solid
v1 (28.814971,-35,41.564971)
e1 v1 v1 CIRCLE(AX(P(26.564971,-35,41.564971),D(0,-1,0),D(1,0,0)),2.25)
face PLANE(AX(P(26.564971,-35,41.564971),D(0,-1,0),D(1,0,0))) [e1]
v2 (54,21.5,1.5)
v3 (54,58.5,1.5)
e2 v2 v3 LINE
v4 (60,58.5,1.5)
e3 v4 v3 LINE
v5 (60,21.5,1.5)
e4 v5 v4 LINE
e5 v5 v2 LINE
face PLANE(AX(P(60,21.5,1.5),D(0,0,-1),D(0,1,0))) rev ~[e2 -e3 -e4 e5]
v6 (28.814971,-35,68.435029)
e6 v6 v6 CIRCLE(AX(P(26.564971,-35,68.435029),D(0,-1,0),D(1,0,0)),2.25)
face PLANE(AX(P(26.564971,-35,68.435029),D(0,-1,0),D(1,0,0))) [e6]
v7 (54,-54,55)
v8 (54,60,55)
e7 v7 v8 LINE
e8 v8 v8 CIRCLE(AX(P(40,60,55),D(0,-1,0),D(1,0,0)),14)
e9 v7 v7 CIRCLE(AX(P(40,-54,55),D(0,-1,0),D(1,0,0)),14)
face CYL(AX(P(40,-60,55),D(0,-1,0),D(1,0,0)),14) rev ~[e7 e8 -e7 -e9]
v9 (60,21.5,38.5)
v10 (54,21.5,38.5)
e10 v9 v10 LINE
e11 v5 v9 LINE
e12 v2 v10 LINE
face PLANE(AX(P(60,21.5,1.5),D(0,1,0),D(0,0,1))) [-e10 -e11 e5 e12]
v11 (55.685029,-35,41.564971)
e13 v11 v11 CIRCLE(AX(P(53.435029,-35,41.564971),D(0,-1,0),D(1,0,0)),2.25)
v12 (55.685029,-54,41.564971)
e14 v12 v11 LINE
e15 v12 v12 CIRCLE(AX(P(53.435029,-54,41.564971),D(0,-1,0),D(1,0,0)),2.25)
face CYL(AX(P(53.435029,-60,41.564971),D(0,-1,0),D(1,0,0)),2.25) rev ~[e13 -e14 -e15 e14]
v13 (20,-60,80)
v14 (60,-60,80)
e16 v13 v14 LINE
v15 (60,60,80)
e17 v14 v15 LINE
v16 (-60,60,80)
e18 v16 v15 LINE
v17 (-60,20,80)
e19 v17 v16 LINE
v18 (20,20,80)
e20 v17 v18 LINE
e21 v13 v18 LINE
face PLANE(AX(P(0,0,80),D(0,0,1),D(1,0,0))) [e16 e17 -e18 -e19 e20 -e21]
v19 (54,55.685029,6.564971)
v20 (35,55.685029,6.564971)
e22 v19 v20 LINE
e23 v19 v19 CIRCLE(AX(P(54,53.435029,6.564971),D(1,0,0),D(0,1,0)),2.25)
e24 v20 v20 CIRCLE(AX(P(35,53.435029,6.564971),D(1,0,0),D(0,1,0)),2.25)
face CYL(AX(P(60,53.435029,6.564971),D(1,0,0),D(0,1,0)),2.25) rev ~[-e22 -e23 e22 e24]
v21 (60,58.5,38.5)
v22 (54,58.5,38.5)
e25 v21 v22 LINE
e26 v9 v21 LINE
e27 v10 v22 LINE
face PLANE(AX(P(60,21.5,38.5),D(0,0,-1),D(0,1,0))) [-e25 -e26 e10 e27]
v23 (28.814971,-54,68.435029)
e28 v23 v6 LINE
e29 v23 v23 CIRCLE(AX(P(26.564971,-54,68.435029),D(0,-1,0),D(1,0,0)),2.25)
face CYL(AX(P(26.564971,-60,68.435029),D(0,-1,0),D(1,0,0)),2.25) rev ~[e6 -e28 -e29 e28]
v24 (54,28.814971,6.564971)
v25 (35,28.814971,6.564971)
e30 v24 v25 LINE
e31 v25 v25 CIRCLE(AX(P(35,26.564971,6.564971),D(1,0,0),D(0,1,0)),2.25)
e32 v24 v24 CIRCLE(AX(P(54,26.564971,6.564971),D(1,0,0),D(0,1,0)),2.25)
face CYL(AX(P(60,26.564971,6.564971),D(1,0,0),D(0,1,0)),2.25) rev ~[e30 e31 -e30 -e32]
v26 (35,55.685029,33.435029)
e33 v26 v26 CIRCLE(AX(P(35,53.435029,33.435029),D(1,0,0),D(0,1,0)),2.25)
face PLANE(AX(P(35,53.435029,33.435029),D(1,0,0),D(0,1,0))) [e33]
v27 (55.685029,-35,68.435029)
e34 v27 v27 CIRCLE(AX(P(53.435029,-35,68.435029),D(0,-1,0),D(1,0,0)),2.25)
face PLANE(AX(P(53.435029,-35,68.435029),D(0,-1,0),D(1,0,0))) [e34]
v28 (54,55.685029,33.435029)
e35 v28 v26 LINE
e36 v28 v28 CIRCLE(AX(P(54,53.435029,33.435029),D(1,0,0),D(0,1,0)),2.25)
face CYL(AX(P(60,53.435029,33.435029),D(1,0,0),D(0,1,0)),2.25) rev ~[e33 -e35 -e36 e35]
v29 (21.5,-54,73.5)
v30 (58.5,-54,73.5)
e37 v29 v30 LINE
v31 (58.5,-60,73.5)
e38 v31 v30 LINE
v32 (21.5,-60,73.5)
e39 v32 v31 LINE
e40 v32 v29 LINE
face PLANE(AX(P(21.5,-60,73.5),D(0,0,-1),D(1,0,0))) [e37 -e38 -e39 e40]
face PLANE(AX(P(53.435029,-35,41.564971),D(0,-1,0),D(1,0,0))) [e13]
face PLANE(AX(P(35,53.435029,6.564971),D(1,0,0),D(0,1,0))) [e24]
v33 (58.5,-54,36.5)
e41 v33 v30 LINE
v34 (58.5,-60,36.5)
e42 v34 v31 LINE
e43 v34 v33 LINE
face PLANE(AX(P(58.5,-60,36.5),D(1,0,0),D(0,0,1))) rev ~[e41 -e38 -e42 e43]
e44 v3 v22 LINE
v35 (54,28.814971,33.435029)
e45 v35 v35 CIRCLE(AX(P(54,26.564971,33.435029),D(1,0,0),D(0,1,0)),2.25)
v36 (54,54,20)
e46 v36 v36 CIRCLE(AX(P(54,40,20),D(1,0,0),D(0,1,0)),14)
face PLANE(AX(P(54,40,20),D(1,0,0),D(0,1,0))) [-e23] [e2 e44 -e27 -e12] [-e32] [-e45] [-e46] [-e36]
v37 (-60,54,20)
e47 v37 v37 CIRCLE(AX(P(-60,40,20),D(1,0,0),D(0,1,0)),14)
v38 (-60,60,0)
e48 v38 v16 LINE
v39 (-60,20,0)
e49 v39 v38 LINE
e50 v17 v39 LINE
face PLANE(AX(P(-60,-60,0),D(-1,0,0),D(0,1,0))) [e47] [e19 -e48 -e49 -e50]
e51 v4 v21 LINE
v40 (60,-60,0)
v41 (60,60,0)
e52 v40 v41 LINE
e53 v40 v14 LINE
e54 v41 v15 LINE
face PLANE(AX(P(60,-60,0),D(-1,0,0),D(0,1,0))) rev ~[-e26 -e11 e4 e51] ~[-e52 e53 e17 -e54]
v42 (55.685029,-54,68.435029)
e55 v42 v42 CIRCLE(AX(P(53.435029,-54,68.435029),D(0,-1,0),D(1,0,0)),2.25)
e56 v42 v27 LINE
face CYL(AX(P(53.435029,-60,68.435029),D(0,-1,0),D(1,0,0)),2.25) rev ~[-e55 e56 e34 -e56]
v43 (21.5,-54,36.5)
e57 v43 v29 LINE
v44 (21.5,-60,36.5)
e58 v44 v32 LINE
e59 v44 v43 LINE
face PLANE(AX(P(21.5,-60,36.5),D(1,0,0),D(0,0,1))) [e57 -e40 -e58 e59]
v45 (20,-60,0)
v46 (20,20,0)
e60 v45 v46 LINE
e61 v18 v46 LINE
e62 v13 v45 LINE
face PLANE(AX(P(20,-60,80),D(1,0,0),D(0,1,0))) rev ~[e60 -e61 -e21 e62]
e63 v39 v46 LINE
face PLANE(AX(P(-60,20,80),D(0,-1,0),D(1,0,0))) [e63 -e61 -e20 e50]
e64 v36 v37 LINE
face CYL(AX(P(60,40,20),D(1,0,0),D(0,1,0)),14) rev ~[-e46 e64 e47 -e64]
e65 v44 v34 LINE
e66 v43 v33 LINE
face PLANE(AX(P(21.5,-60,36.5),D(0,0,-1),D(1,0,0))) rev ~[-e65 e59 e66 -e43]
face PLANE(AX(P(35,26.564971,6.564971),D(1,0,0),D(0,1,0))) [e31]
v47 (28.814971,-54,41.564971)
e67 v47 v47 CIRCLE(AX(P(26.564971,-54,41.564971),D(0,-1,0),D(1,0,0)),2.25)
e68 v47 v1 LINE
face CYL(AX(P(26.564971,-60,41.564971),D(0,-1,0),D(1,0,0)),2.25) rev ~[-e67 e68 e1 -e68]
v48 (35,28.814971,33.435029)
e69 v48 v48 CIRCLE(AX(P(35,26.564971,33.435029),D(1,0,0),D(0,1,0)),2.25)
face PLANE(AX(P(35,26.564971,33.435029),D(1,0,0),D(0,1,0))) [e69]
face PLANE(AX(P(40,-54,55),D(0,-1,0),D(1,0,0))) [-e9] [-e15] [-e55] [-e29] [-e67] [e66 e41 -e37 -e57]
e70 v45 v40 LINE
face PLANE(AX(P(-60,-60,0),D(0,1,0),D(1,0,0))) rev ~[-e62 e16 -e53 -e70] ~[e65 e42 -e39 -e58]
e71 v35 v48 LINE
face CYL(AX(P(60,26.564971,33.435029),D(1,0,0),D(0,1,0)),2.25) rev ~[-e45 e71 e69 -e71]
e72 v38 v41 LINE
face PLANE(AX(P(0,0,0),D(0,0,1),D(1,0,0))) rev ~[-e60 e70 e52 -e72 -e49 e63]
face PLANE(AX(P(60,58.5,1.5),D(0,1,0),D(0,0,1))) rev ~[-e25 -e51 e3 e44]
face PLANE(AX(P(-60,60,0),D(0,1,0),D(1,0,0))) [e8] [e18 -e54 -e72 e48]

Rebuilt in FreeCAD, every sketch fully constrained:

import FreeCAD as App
import Part
import Sketcher
from FreeCAD import Vector

doc = App.newDocument("Part")
params = doc.addObject("Spreadsheet::Sheet", "Params")
for row, (alias, value) in enumerate([
    ("sketch1_width", "120 mm"),
    ("pad1_length", "80 mm"),
    ("sketch2_width", "37 mm"),
    ("pocket1_length", "6 mm"),
    ("sketch3_diameter", "28 mm"),
    ("sketch4_diameter", "4.5 mm"),
    ("pocket3_length", "25 mm"),
    ("sketch5_width", "37 mm"),
    ("pocket4_length", "6 mm"),
    ("sketch6_diameter", "28 mm"),
    ("sketch7_diameter", "4.5 mm"),
    ("pocket6_length", "25 mm"),
    ("sketch8_width", "80 mm"),
], start=1):
    params.set(f"A{row}", alias)
    params.set(f"B{row}", "=" + value)
    params.setAlias(f"B{row}", alias)

body = doc.addObject("PartDesign::Body", "Body")

sketch1 = body.newObject("Sketcher::SketchObject", "Sketch")
sketch1.AttachmentSupport = (doc.getObject("XY_Plane"), [""])
sketch1.MapMode = "FlatFace"
sketch1.addGeometry([
    Part.LineSegment(Vector(-60, 60, 0), Vector(-60, -60, 0)),
    Part.LineSegment(Vector(-60, -60, 0), Vector(60, -60, 0)),
    Part.LineSegment(Vector(60, -60, 0), Vector(60, 60, 0)),
    Part.LineSegment(Vector(60, 60, 0), Vector(-60, 60, 0)),
], False)
sketch1.addConstraint([
    Sketcher.Constraint("Coincident", 0, 2, 1, 1),
    Sketcher.Constraint("Coincident", 1, 2, 2, 1),
    Sketcher.Constraint("Coincident", 2, 2, 3, 1),
    Sketcher.Constraint("Coincident", 3, 2, 0, 1),
    Sketcher.Constraint("Vertical", 0),
    Sketcher.Constraint("Horizontal", 1),
    Sketcher.Constraint("Vertical", 2),
    Sketcher.Constraint("Horizontal", 3),
    Sketcher.Constraint("Symmetric", 0, 2, 2, 2, -1, 1),
    Sketcher.Constraint("Equal", 3, 0),
    Sketcher.Constraint("DistanceX", 1, 1, 1, 2, 120.0),
])
sketch1.setExpression("Constraints[10]", "Params.sketch1_width")
pad1 = body.newObject("PartDesign::Pad", "Pad")
pad1.Profile = sketch1
pad1.setExpression("Length", "Params.pad1_length")

sketch2 = body.newObject("Sketcher::SketchObject", "Sketch001")
sketch2.AttachmentSupport = (doc.getObject("XZ_Plane"), [""])
sketch2.MapMode = "FlatFace"
sketch2.AttachmentOffset = App.Placement(Vector(0, 0, 60), App.Rotation())
sketch2.addGeometry([
    Part.LineSegment(Vector(21.5, 73.5, 0), Vector(21.5, 36.5, 0)),
    Part.LineSegment(Vector(21.5, 36.5, 0), Vector(58.5, 36.5, 0)),
    Part.LineSegment(Vector(58.5, 36.5, 0), Vector(58.5, 73.5, 0)),
    Part.LineSegment(Vector(58.5, 73.5, 0), Vector(21.5, 73.5, 0)),
], False)
sketch2.addConstraint([
    Sketcher.Constraint("Coincident", 0, 2, 1, 1),
    Sketcher.Constraint("Coincident", 1, 2, 2, 1),
    Sketcher.Constraint("Coincident", 2, 2, 3, 1),
    Sketcher.Constraint("Coincident", 3, 2, 0, 1),
    Sketcher.Constraint("Vertical", 0),
    Sketcher.Constraint("Horizontal", 1),
    Sketcher.Constraint("Vertical", 2),
    Sketcher.Constraint("Horizontal", 3),
    Sketcher.Constraint("Equal", 3, 0),
    Sketcher.Constraint("DistanceX", 1, 1, 1, 2, 37.0),
    Sketcher.Constraint("DistanceX", -1, 1, 0, 2, 21.5),
    Sketcher.Constraint("DistanceY", -1, 1, 0, 2, 36.5),
])
sketch2.setExpression("Constraints[9]", "Params.sketch2_width")
pocket1 = body.newObject("PartDesign::Pocket", "Pocket")
pocket1.Profile = sketch2
pocket1.setExpression("Length", "Params.pocket1_length")

sketch3 = body.newObject("Sketcher::SketchObject", "Sketch002")
sketch3.AttachmentSupport = (doc.getObject("XZ_Plane"), [""])
sketch3.MapMode = "FlatFace"
sketch3.AttachmentOffset = App.Placement(Vector(0, 0, 60), App.Rotation())
sketch3.addGeometry(Part.Circle(Vector(40, 55, 0), Vector(0, 0, 1), 14), False)
sketch3.addConstraint([
    Sketcher.Constraint("Diameter", 0, 28.0),
    Sketcher.Constraint("DistanceX", -1, 1, 0, 3, 40.0),
    Sketcher.Constraint("DistanceY", -1, 1, 0, 3, 55.0),
])
sketch3.setExpression("Constraints[0]", "Params.sketch3_diameter")
pocket2 = body.newObject("PartDesign::Pocket", "Pocket001")
pocket2.Profile = sketch3
pocket2.Type = "ThroughAll"

sketch4 = body.newObject("Sketcher::SketchObject", "Sketch003")
sketch4.AttachmentSupport = (doc.getObject("XZ_Plane"), [""])
sketch4.MapMode = "FlatFace"
sketch4.AttachmentOffset = App.Placement(Vector(0, 0, 60), App.Rotation())
sketch4.addGeometry([
    Part.Circle(Vector(26.564971, 68.435029, 0), Vector(0, 0, 1), 2.25),
    Part.Circle(Vector(53.435029, 68.435029, 0), Vector(0, 0, 1), 2.25),
    Part.Circle(Vector(53.435029, 41.564971, 0), Vector(0, 0, 1), 2.25),
    Part.Circle(Vector(26.564971, 41.564971, 0), Vector(0, 0, 1), 2.25),
], False)
sketch4.addConstraint([
    Sketcher.Constraint("Equal", 0, 1),
    Sketcher.Constraint("Equal", 1, 2),
    Sketcher.Constraint("Equal", 2, 3),
    Sketcher.Constraint("Horizontal", 0, 3, 1, 3),
    Sketcher.Constraint("Horizontal", 2, 3, 3, 3),
    Sketcher.Constraint("Vertical", 1, 3, 2, 3),
    Sketcher.Constraint("Vertical", 0, 3, 3, 3),
    Sketcher.Constraint("Diameter", 0, 4.5),
    Sketcher.Constraint("DistanceX", -1, 1, 0, 3, 26.564971),
    Sketcher.Constraint("DistanceY", -1, 1, 0, 3, 68.435029),
    Sketcher.Constraint("DistanceX", -1, 1, 1, 3, 53.435029),
    Sketcher.Constraint("DistanceY", -1, 1, 2, 3, 41.564971),
])
sketch4.setExpression("Constraints[7]", "Params.sketch4_diameter")
pocket3 = body.newObject("PartDesign::Pocket", "Pocket002")
pocket3.Profile = sketch4
pocket3.setExpression("Length", "Params.pocket3_length")

sketch5 = body.newObject("Sketcher::SketchObject", "Sketch004")
sketch5.AttachmentSupport = (doc.getObject("YZ_Plane"), [""])
sketch5.MapMode = "FlatFace"
sketch5.AttachmentOffset = App.Placement(Vector(0, 0, 60), App.Rotation())
sketch5.addGeometry([
    Part.LineSegment(Vector(21.5, 38.5, 0), Vector(21.5, 1.5, 0)),
    Part.LineSegment(Vector(21.5, 1.5, 0), Vector(58.5, 1.5, 0)),
    Part.LineSegment(Vector(58.5, 1.5, 0), Vector(58.5, 38.5, 0)),
    Part.LineSegment(Vector(58.5, 38.5, 0), Vector(21.5, 38.5, 0)),
], False)
sketch5.addConstraint([
    Sketcher.Constraint("Coincident", 0, 2, 1, 1),
    Sketcher.Constraint("Coincident", 1, 2, 2, 1),
    Sketcher.Constraint("Coincident", 2, 2, 3, 1),
    Sketcher.Constraint("Coincident", 3, 2, 0, 1),
    Sketcher.Constraint("Vertical", 0),
    Sketcher.Constraint("Horizontal", 1),
    Sketcher.Constraint("Vertical", 2),
    Sketcher.Constraint("Horizontal", 3),
    Sketcher.Constraint("Equal", 3, 0),
    Sketcher.Constraint("DistanceX", 1, 1, 1, 2, 37.0),
    Sketcher.Constraint("DistanceX", -1, 1, 0, 2, 21.5),
    Sketcher.Constraint("DistanceY", -1, 1, 0, 2, 1.5),
])
sketch5.setExpression("Constraints[9]", "Params.sketch5_width")
pocket4 = body.newObject("PartDesign::Pocket", "Pocket003")
pocket4.Profile = sketch5
pocket4.setExpression("Length", "Params.pocket4_length")

sketch6 = body.newObject("Sketcher::SketchObject", "Sketch005")
sketch6.AttachmentSupport = (doc.getObject("YZ_Plane"), [""])
sketch6.MapMode = "FlatFace"
sketch6.AttachmentOffset = App.Placement(Vector(0, 0, 60), App.Rotation())
sketch6.addGeometry(Part.Circle(Vector(40, 20, 0), Vector(0, 0, 1), 14), False)
sketch6.addConstraint([
    Sketcher.Constraint("Diameter", 0, 28.0),
    Sketcher.Constraint("DistanceX", -1, 1, 0, 3, 40.0),
    Sketcher.Constraint("DistanceY", -1, 1, 0, 3, 20.0),
])
sketch6.setExpression("Constraints[0]", "Params.sketch6_diameter")
pocket5 = body.newObject("PartDesign::Pocket", "Pocket004")
pocket5.Profile = sketch6
pocket5.Type = "ThroughAll"

sketch7 = body.newObject("Sketcher::SketchObject", "Sketch006")
sketch7.AttachmentSupport = (doc.getObject("YZ_Plane"), [""])
sketch7.MapMode = "FlatFace"
sketch7.AttachmentOffset = App.Placement(Vector(0, 0, 60), App.Rotation())
sketch7.addGeometry([
    Part.Circle(Vector(26.564971, 33.435029, 0), Vector(0, 0, 1), 2.25),
    Part.Circle(Vector(53.435029, 33.435029, 0), Vector(0, 0, 1), 2.25),
    Part.Circle(Vector(53.435029, 6.564971, 0), Vector(0, 0, 1), 2.25),
    Part.Circle(Vector(26.564971, 6.564971, 0), Vector(0, 0, 1), 2.25),
], False)
sketch7.addConstraint([
    Sketcher.Constraint("Equal", 0, 1),
    Sketcher.Constraint("Equal", 1, 2),
    Sketcher.Constraint("Equal", 2, 3),
    Sketcher.Constraint("Horizontal", 0, 3, 1, 3),
    Sketcher.Constraint("Horizontal", 2, 3, 3, 3),
    Sketcher.Constraint("Vertical", 1, 3, 2, 3),
    Sketcher.Constraint("Vertical", 0, 3, 3, 3),
    Sketcher.Constraint("Diameter", 0, 4.5),
    Sketcher.Constraint("DistanceX", -1, 1, 0, 3, 26.564971),
    Sketcher.Constraint("DistanceY", -1, 1, 0, 3, 33.435029),
    Sketcher.Constraint("DistanceX", -1, 1, 1, 3, 53.435029),
    Sketcher.Constraint("DistanceY", -1, 1, 2, 3, 6.564971),
])
sketch7.setExpression("Constraints[7]", "Params.sketch7_diameter")
pocket6 = body.newObject("PartDesign::Pocket", "Pocket005")
pocket6.Profile = sketch7
pocket6.setExpression("Length", "Params.pocket6_length")

sketch8 = body.newObject("Sketcher::SketchObject", "Sketch007")
sketch8.AttachmentSupport = (doc.getObject("XY_Plane"), [""])
sketch8.MapMode = "FlatFace"
sketch8.AttachmentOffset = App.Placement(Vector(0, 0, 80), App.Rotation())
sketch8.addGeometry([
    Part.LineSegment(Vector(-60, 20, 0), Vector(-60, -60, 0)),
    Part.LineSegment(Vector(-60, -60, 0), Vector(20, -60, 0)),
    Part.LineSegment(Vector(20, -60, 0), Vector(20, 20, 0)),
    Part.LineSegment(Vector(20, 20, 0), Vector(-60, 20, 0)),
], False)
sketch8.addConstraint([
    Sketcher.Constraint("Coincident", 0, 2, 1, 1),
    Sketcher.Constraint("Coincident", 1, 2, 2, 1),
    Sketcher.Constraint("Coincident", 2, 2, 3, 1),
    Sketcher.Constraint("Coincident", 3, 2, 0, 1),
    Sketcher.Constraint("Vertical", 0),
    Sketcher.Constraint("Horizontal", 1),
    Sketcher.Constraint("Vertical", 2),
    Sketcher.Constraint("Horizontal", 3),
    Sketcher.Constraint("Equal", 3, 0),
    Sketcher.Constraint("DistanceX", 1, 1, 1, 2, 80.0),
    Sketcher.Constraint("DistanceX", 0, 2, -1, 1, 60.0),
    Sketcher.Constraint("DistanceY", 0, 2, -1, 1, 60.0),
])
sketch8.setExpression("Constraints[9]", "Params.sketch8_width")
pocket7 = body.newObject("PartDesign::Pocket", "Pocket006")
pocket7.Profile = sketch8
pocket7.Type = "ThroughAll"

doc.recompute()
